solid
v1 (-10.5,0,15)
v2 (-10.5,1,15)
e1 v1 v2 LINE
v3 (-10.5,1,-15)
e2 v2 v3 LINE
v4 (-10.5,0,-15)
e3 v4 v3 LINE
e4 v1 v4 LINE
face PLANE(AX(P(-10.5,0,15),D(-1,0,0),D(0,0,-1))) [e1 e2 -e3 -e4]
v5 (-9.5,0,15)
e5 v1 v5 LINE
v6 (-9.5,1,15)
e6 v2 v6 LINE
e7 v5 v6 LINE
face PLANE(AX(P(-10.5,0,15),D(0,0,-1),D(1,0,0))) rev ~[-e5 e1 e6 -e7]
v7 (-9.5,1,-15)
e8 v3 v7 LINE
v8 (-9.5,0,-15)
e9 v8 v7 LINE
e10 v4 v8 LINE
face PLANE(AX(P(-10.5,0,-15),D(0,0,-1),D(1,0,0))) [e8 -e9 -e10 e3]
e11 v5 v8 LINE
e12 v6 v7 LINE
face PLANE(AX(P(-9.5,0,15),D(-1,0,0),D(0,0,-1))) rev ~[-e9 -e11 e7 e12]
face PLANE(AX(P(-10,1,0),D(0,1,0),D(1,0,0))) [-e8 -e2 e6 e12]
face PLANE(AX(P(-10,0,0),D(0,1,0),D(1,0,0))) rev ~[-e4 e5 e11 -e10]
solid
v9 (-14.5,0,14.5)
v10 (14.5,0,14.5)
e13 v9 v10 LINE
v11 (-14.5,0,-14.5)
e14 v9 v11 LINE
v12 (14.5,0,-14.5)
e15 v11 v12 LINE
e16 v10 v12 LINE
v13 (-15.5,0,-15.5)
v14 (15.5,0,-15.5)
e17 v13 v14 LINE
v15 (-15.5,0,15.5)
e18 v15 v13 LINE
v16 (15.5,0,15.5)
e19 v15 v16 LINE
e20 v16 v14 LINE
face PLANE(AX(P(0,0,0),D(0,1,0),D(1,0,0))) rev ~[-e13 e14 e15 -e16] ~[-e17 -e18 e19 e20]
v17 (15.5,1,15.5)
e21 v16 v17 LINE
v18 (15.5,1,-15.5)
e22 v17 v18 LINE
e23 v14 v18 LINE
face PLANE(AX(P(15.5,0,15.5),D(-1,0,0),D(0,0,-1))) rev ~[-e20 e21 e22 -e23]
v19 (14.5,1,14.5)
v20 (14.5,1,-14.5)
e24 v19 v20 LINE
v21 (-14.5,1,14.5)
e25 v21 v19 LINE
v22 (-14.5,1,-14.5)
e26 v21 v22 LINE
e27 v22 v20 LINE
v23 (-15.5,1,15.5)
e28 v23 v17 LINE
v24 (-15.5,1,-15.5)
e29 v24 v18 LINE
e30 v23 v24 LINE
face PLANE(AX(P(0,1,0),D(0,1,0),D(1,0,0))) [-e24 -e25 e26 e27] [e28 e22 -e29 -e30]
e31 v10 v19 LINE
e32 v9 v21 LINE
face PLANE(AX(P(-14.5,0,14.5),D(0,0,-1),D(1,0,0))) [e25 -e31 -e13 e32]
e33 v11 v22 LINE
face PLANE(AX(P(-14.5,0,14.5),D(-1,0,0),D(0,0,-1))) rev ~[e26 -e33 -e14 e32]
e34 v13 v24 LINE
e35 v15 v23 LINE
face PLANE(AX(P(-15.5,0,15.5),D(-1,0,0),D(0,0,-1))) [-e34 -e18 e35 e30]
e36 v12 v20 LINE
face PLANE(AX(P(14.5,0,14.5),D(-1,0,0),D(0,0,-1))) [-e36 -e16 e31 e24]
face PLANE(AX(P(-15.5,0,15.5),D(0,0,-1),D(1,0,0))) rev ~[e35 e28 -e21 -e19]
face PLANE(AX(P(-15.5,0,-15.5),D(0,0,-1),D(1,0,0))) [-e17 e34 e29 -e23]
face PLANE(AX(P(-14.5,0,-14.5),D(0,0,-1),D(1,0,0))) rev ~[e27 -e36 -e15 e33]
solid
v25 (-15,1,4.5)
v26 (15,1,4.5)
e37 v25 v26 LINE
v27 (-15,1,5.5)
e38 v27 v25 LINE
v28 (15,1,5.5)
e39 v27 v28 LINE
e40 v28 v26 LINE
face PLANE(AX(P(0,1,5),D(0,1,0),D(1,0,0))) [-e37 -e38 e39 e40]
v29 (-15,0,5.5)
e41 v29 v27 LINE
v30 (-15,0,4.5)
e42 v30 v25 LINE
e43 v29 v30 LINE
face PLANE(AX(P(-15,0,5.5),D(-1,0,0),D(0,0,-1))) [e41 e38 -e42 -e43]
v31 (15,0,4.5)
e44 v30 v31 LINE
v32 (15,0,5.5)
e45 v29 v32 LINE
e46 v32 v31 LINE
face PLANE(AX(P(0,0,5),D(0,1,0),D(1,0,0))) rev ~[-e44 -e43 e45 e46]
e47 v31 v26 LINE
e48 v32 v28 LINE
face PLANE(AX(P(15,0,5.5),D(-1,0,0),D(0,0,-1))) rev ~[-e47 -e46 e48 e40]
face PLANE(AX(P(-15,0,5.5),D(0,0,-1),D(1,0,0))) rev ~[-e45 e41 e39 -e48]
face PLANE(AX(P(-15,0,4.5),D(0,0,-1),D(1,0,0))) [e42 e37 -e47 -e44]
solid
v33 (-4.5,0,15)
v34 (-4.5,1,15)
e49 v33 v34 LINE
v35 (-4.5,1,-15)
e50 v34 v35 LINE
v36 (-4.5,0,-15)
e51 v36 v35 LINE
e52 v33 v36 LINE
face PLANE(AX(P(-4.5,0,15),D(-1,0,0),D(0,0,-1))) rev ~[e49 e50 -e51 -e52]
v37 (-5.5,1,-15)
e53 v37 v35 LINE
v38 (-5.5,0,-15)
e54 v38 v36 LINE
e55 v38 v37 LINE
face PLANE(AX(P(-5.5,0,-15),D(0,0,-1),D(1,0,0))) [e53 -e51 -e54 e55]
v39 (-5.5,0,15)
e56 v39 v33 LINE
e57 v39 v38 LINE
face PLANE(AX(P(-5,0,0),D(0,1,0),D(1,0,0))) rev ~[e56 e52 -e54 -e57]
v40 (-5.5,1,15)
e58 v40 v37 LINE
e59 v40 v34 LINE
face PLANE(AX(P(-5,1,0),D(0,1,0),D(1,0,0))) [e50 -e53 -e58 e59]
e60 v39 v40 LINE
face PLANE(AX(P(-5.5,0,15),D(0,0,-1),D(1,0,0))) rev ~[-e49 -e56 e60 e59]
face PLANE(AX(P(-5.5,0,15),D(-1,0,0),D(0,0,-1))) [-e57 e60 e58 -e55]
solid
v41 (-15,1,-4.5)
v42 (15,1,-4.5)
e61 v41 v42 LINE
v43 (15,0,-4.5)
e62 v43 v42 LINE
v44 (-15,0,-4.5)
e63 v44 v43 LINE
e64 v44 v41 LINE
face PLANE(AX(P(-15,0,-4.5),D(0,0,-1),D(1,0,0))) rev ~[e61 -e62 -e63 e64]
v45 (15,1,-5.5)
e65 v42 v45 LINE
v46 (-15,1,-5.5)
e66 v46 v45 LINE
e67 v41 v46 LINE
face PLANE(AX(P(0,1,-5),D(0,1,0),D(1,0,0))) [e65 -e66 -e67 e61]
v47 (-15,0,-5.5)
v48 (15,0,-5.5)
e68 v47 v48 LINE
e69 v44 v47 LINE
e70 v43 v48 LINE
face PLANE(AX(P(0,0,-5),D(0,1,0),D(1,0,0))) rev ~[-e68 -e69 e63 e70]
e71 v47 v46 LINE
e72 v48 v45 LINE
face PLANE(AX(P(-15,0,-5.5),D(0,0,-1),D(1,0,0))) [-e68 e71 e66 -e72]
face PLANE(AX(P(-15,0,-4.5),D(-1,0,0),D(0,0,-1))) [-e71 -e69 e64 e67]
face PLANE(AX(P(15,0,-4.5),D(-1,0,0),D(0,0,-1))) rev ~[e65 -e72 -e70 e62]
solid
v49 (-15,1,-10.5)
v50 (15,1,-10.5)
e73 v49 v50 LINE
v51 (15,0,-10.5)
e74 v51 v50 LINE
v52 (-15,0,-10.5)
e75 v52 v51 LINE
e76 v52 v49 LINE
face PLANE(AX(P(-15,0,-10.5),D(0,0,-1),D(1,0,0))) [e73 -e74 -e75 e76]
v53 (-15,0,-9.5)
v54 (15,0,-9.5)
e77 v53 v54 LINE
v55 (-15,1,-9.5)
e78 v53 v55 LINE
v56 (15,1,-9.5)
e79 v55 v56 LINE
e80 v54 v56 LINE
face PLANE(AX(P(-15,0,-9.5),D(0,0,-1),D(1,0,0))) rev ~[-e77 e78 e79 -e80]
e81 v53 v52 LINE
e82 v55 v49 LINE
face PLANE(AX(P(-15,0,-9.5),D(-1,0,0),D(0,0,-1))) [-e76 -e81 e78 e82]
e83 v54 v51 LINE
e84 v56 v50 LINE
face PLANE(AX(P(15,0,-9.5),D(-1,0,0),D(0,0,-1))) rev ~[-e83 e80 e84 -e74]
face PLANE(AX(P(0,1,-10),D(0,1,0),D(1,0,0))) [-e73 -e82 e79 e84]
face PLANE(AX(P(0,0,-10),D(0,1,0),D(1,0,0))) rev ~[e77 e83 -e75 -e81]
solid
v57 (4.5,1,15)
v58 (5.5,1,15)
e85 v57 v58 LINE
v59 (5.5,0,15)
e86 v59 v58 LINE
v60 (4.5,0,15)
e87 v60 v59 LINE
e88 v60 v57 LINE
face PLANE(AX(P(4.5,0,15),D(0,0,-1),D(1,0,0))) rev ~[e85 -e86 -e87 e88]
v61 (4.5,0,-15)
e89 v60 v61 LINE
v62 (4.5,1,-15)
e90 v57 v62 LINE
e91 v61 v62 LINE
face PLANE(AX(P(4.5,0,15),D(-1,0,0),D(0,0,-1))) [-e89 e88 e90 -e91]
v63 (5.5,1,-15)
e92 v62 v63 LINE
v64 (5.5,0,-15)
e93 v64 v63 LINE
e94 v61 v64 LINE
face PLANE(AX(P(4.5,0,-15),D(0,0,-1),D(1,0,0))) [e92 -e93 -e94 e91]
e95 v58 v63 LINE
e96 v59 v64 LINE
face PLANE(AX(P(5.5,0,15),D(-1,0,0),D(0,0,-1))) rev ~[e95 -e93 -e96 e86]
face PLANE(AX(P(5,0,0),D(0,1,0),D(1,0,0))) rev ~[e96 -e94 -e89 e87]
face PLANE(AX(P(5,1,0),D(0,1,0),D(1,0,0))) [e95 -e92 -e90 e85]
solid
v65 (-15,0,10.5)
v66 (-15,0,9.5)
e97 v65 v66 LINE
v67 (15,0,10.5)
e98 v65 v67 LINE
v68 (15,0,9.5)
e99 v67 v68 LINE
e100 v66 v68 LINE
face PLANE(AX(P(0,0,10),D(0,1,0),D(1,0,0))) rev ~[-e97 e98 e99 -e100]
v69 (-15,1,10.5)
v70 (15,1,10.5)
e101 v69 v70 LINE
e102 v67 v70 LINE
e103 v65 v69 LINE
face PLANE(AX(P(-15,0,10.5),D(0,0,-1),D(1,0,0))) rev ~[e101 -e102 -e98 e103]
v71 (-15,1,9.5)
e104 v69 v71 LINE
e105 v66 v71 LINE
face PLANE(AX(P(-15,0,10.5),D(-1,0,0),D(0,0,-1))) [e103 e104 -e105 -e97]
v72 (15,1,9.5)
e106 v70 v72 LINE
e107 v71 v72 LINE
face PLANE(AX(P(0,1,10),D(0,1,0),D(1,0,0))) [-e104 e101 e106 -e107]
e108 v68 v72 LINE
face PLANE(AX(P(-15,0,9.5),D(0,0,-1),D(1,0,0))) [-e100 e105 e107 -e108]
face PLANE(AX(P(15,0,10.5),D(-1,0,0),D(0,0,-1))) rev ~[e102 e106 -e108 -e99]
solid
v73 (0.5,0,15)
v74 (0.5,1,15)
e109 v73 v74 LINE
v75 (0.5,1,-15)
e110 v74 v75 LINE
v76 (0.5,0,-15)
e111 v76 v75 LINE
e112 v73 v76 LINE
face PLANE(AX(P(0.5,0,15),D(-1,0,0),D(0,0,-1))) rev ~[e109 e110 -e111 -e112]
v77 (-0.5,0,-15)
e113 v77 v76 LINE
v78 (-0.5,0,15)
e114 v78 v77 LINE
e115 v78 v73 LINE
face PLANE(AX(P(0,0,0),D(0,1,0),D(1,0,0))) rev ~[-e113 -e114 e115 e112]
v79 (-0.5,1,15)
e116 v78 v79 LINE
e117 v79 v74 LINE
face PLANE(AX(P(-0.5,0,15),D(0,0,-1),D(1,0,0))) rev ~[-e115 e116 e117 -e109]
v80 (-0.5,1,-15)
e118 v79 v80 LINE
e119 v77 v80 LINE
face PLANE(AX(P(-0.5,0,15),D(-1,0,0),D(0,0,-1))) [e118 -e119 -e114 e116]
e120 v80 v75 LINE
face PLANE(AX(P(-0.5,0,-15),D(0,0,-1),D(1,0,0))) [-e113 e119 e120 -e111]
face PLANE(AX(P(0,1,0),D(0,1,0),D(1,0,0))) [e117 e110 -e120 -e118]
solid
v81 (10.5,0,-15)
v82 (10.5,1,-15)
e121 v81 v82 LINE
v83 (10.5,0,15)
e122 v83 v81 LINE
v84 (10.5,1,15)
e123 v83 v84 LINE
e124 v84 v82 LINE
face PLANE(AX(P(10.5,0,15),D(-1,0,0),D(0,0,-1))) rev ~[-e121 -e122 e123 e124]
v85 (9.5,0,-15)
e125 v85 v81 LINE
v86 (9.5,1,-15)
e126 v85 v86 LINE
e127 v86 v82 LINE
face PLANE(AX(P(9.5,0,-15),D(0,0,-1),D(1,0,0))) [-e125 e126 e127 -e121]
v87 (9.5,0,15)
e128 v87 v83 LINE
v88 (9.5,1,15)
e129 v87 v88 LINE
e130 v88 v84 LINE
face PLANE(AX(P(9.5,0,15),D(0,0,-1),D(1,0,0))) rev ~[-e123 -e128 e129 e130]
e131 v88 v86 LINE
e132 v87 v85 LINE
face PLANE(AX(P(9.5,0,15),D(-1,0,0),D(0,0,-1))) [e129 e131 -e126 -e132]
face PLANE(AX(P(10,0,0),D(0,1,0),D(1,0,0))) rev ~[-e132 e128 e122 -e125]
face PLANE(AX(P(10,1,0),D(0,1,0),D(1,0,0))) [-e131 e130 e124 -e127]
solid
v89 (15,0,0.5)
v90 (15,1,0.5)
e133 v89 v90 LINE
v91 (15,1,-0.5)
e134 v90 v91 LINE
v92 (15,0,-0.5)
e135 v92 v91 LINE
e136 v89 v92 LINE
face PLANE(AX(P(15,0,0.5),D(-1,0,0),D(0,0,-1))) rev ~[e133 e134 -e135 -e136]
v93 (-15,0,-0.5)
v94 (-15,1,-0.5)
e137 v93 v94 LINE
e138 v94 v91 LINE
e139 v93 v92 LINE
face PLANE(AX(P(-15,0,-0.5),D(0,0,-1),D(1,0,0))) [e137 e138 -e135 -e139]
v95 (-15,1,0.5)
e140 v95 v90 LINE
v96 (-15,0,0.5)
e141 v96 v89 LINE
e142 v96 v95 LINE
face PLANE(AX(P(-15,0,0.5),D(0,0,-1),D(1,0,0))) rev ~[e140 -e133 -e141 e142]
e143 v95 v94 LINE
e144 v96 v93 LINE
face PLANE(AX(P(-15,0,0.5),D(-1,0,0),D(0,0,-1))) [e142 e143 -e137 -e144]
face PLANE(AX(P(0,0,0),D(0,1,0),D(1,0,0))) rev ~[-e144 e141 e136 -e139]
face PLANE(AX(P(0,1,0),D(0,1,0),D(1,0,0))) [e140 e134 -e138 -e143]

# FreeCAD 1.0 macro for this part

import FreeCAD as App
import Part
import Sketcher
from FreeCAD import Vector


def add_polygon(sketch, points):
    """Adds a closed chain of lines whose ends are joined by coincident constraints."""
    first, n = sketch.GeometryCount, len(points)
    for a, b in zip(points, points[1:] + points[:1]):
        sketch.addGeometry(Part.LineSegment(App.Vector(*a, 0), App.Vector(*b, 0)), False)
    for i in range(n):
        sketch.addConstraint(Sketcher.Constraint("Coincident", first + i, 2, first + (i + 1) % n, 1))

doc = App.newDocument("Part")
body = doc.addObject("PartDesign::Body", "Body")

# Sketch on XZ plane
sketch1 = body.newObject("Sketcher::SketchObject", "Sketch")
sketch1.AttachmentSupport = (doc.getObject("XZ_Plane"), [""])
sketch1.MapMode = "FlatFace"
add_polygon(sketch1, [(-10.5, -15), (-10.5, 15), (-9.5, 15), (-9.5, -15)])  # lines 0-3
sketch1.addConstraint(Sketcher.Constraint("Vertical", 0))
sketch1.addConstraint(Sketcher.Constraint("Horizontal", 1))
sketch1.addConstraint(Sketcher.Constraint("Vertical", 2))
sketch1.addConstraint(Sketcher.Constraint("Horizontal", 3))
sketch1.addConstraint(Sketcher.Constraint("DistanceX", 1, 1, 1, 2, 1.0))
sketch1.addConstraint(Sketcher.Constraint("DistanceY", 0, 1, 0, 2, 30.0))
sketch1.addConstraint(Sketcher.Constraint("DistanceY", -1, 1, 0, 2, 15.0))
sketch1.addConstraint(Sketcher.Constraint("DistanceX", 0, 2, -1, 1, 10.5))
pad1 = body.newObject("PartDesign::Pad", "Pad")
pad1.Profile = sketch1
pad1.Length = 1
pad1.Reversed = True
body2 = doc.addObject("PartDesign::Body", "Body001")

# Sketch on XZ plane
sketch2 = body2.newObject("Sketcher::SketchObject", "Sketch001")
sketch2.AttachmentSupport = (doc.getObject("XZ_Plane001"), [""])
sketch2.MapMode = "FlatFace"
add_polygon(sketch2, [(-16, -16), (-16, 16), (16, 16), (16, -16)])  # lines 0-3
add_polygon(sketch2, [(14, 14), (-14, 14), (-14, -14), (14, -14)])  # lines 4-7
sketch2.addConstraint(Sketcher.Constraint("Vertical", 0))
sketch2.addConstraint(Sketcher.Constraint("Horizontal", 1))
sketch2.addConstraint(Sketcher.Constraint("Vertical", 2))
sketch2.addConstraint(Sketcher.Constraint("Horizontal", 3))
sketch2.addConstraint(Sketcher.Constraint("Horizontal", 4))
sketch2.addConstraint(Sketcher.Constraint("Vertical", 5))
sketch2.addConstraint(Sketcher.Constraint("Horizontal", 6))
sketch2.addConstraint(Sketcher.Constraint("Vertical", 7))
sketch2.addConstraint(Sketcher.Constraint("Symmetric", 0, 2, 2, 2, -1, 1))
sketch2.addConstraint(Sketcher.Constraint("Symmetric", 4, 2, 6, 2, -1, 1))
sketch2.addConstraint(Sketcher.Constraint("Equal", 3, 0))
sketch2.addConstraint(Sketcher.Constraint("Equal", 6, 5))
sketch2.addConstraint(Sketcher.Constraint("DistanceX", 1, 1, 1, 2, 31.0))
sketch2.addConstraint(Sketcher.Constraint("DistanceX", 4, 2, 4, 1, 29.0))
pad2 = body2.newObject("PartDesign::Pad", "Pad001")
pad2.Profile = sketch2
pad2.Length = 1
pad2.Reversed = True
body3 = doc.addObject("PartDesign::Body", "Body002")

# Sketch on XZ plane
sketch3 = body3.newObject("Sketcher::SketchObject", "Sketch002")
sketch3.AttachmentSupport = (doc.getObject("XZ_Plane002"), [""])
sketch3.MapMode = "FlatFace"
add_polygon(sketch3, [(-5.5, -15), (-5.5, 15), (-4.5, 15), (-4.5, -15)])  # lines 0-3
sketch3.addConstraint(Sketcher.Constraint("Vertical", 0))
sketch3.addConstraint(Sketcher.Constraint("Horizontal", 1))
sketch3.addConstraint(Sketcher.Constraint("Vertical", 2))
sketch3.addConstraint(Sketcher.Constraint("Horizontal", 3))
sketch3.addConstraint(Sketcher.Constraint("DistanceX", 1, 1, 1, 2, 1.0))
sketch3.addConstraint(Sketcher.Constraint("DistanceY", 0, 1, 0, 2, 30.0))
sketch3.addConstraint(Sketcher.Constraint("DistanceY", -1, 1, 0, 2, 15.0))
sketch3.addConstraint(Sketcher.Constraint("DistanceX", 0, 2, -1, 1, 5.5))
pad3 = body3.newObject("PartDesign::Pad", "Pad002")
pad3.Profile = sketch3
pad3.Length = 1
pad3.Reversed = True
body4 = doc.addObject("PartDesign::Body", "Body003")

# Sketch on XZ plane
sketch4 = body4.newObject("Sketcher::SketchObject", "Sketch003")
sketch4.AttachmentSupport = (doc.getObject("XZ_Plane003"), [""])
sketch4.MapMode = "FlatFace"
add_polygon(sketch4, [(-0.5, -15), (-0.5, 15), (0.5, 15), (0.5, -15)])  # lines 0-3
sketch4.addConstraint(Sketcher.Constraint("Vertical", 0))
sketch4.addConstraint(Sketcher.Constraint("Horizontal", 1))
sketch4.addConstraint(Sketcher.Constraint("Vertical", 2))
sketch4.addConstraint(Sketcher.Constraint("Horizontal", 3))
sketch4.addConstraint(Sketcher.Constraint("Symmetric", 0, 2, 2, 2, -1, 1))
sketch4.addConstraint(Sketcher.Constraint("DistanceX", 1, 1, 1, 2, 1.0))
sketch4.addConstraint(Sketcher.Constraint("DistanceY", 0, 1, 0, 2, 30.0))
pad4 = body4.newObject("PartDesign::Pad", "Pad003")
pad4.Profile = sketch4
pad4.Length = 1
pad4.Reversed = True
body5 = doc.addObject("PartDesign::Body", "Body004")

# Sketch on XZ plane
sketch5 = body5.newObject("Sketcher::SketchObject", "Sketch004")
sketch5.AttachmentSupport = (doc.getObject("XZ_Plane004"), [""])
sketch5.MapMode = "FlatFace"
add_polygon(sketch5, [(4.5, -15), (4.5, 15), (5.5, 15), (5.5, -15)])  # lines 0-3
sketch5.addConstraint(Sketcher.Constraint("Vertical", 0))
sketch5.addConstraint(Sketcher.Constraint("Horizontal", 1))
sketch5.addConstraint(Sketcher.Constraint("Vertical", 2))
sketch5.addConstraint(Sketcher.Constraint("Horizontal", 3))
sketch5.addConstraint(Sketcher.Constraint("DistanceX", 1, 1, 1, 2, 1.0))
sketch5.addConstraint(Sketcher.Constraint("DistanceY", 0, 1, 0, 2, 30.0))
sketch5.addConstraint(Sketcher.Constraint("DistanceY", -1, 1, 0, 2, 15.0))
sketch5.addConstraint(Sketcher.Constraint("DistanceX", -1, 1, 0, 2, 4.5))
pad5 = body5.newObject("PartDesign::Pad", "Pad004")
pad5.Profile = sketch5
pad5.Length = 1
pad5.Reversed = True
body6 = doc.addObject("PartDesign::Body", "Body005")

# Sketch on XZ plane
sketch6 = body6.newObject("Sketcher::SketchObject", "Sketch005")
sketch6.AttachmentSupport = (doc.getObject("XZ_Plane005"), [""])
sketch6.MapMode = "FlatFace"
add_polygon(sketch6, [(9.5, -15), (9.5, 15), (10.5, 15), (10.5, -15)])  # lines 0-3
sketch6.addConstraint(Sketcher.Constraint("Vertical", 0))
sketch6.addConstraint(Sketcher.Constraint("Horizontal", 1))
sketch6.addConstraint(Sketcher.Constraint("Vertical", 2))
sketch6.addConstraint(Sketcher.Constraint("Horizontal", 3))
sketch6.addConstraint(Sketcher.Constraint("DistanceX", 1, 1, 1, 2, 1.0))
sketch6.addConstraint(Sketcher.Constraint("DistanceY", 0, 1, 0, 2, 30.0))
sketch6.addConstraint(Sketcher.Constraint("DistanceY", -1, 1, 0, 2, 15.0))
sketch6.addConstraint(Sketcher.Constraint("DistanceX", -1, 1, 0, 2, 9.5))
pad6 = body6.newObject("PartDesign::Pad", "Pad005")
pad6.Profile = sketch6
pad6.Length = 1
pad6.Reversed = True
body7 = doc.addObject("PartDesign::Body", "Body006")

# Sketch on XZ plane
sketch7 = body7.newObject("Sketcher::SketchObject", "Sketch006")
sketch7.AttachmentSupport = (doc.getObject("XZ_Plane006"), [""])
sketch7.MapMode = "FlatFace"
add_polygon(sketch7, [(-15, 9.5), (-15, 10.5), (15, 10.5), (15, 9.5)])  # lines 0-3
sketch7.addConstraint(Sketcher.Constraint("Vertical", 0))
sketch7.addConstraint(Sketcher.Constraint("Horizontal", 1))
sketch7.addConstraint(Sketcher.Constraint("Vertical", 2))
sketch7.addConstraint(Sketcher.Constraint("Horizontal", 3))
sketch7.addConstraint(Sketcher.Constraint("DistanceX", 1, 1, 1, 2, 30.0))
sketch7.addConstraint(Sketcher.Constraint("DistanceY", 0, 1, 0, 2, 1.0))
sketch7.addConstraint(Sketcher.Constraint("DistanceX", 0, 2, -1, 1, 15.0))
sketch7.addConstraint(Sketcher.Constraint("DistanceY", -1, 1, 0, 2, 10.5))
pad7 = body7.newObject("PartDesign::Pad", "Pad006")
pad7.Profile = sketch7
pad7.Length = 1
pad7.Reversed = True
body8 = doc.addObject("PartDesign::Body", "Body007")

# Sketch on XZ plane
sketch8 = body8.newObject("Sketcher::SketchObject", "Sketch007")
sketch8.AttachmentSupport = (doc.getObject("XZ_Plane007"), [""])
sketch8.MapMode = "FlatFace"
add_polygon(sketch8, [(-15, 4.5), (-15, 5.5), (15, 5.5), (15, 4.5)])  # lines 0-3
sketch8.addConstraint(Sketcher.Constraint("Vertical", 0))
sketch8.addConstraint(Sketcher.Constraint("Horizontal", 1))
sketch8.addConstraint(Sketcher.Constraint("Vertical", 2))
sketch8.addConstraint(Sketcher.Constraint("Horizontal", 3))
sketch8.addConstraint(Sketcher.Constraint("DistanceX", 1, 1, 1, 2, 30.0))
sketch8.addConstraint(Sketcher.Constraint("DistanceY", 0, 1, 0, 2, 1.0))
sketch8.addConstraint(Sketcher.Constraint("DistanceX", 0, 2, -1, 1, 15.0))
sketch8.addConstraint(Sketcher.Constraint("DistanceY", -1, 1, 0, 2, 5.5))
pad8 = body8.newObject("PartDesign::Pad", "Pad007")
pad8.Profile = sketch8
pad8.Length = 1
pad8.Reversed = True
body9 = doc.addObject("PartDesign::Body", "Body008")

# Sketch on XZ plane
sketch9 = body9.newObject("Sketcher::SketchObject", "Sketch008")
sketch9.AttachmentSupport = (doc.getObject("XZ_Plane008"), [""])
sketch9.MapMode = "FlatFace"
add_polygon(sketch9, [(-15, -0.5), (-15, 0.5), (15, 0.5), (15, -0.5)])  # lines 0-3
sketch9.addConstraint(Sketcher.Constraint("Vertical", 0))
sketch9.addConstraint(Sketcher.Constraint("Horizontal", 1))
sketch9.addConstraint(Sketcher.Constraint("Vertical", 2))
sketch9.addConstraint(Sketcher.Constraint("Horizontal", 3))
sketch9.addConstraint(Sketcher.Constraint("Symmetric", 0, 2, 2, 2, -1, 1))
sketch9.addConstraint(Sketcher.Constraint("DistanceX", 1, 1, 1, 2, 30.0))
sketch9.addConstraint(Sketcher.Constraint("DistanceY", 0, 1, 0, 2, 1.0))
pad9 = body9.newObject("PartDesign::Pad", "Pad008")
pad9.Profile = sketch9
pad9.Length = 1
pad9.Reversed = True
body10 = doc.addObject("PartDesign::Body", "Body009")

# Sketch on XZ plane
sketch10 = body10.newObject("Sketcher::SketchObject", "Sketch009")
sketch10.AttachmentSupport = (doc.getObject("XZ_Plane009"), [""])
sketch10.MapMode = "FlatFace"
add_polygon(sketch10, [(-15, -5.5), (-15, -4.5), (15, -4.5), (15, -5.5)])  # lines 0-3
sketch10.addConstraint(Sketcher.Constraint("Vertical", 0))
sketch10.addConstraint(Sketcher.Constraint("Horizontal", 1))
sketch10.addConstraint(Sketcher.Constraint("Vertical", 2))
sketch10.addConstraint(Sketcher.Constraint("Horizontal", 3))
sketch10.addConstraint(Sketcher.Constraint("DistanceX", 1, 1, 1, 2, 30.0))
sketch10.addConstraint(Sketcher.Constraint("DistanceY", 0, 1, 0, 2, 1.0))
sketch10.addConstraint(Sketcher.Constraint("DistanceX", 0, 2, -1, 1, 15.0))
sketch10.addConstraint(Sketcher.Constraint("DistanceY", 0, 2, -1, 1, 4.5))
pad10 = body10.newObject("PartDesign::Pad", "Pad009")
pad10.Profile = sketch10
pad10.Length = 1
pad10.Reversed = True
body11 = doc.addObject("PartDesign::Body", "Body010")

# Sketch on XZ plane
sketch11 = body11.newObject("Sketcher::SketchObject", "Sketch010")
sketch11.AttachmentSupport = (doc.getObject("XZ_Plane010"), [""])
sketch11.MapMode = "FlatFace"
add_polygon(sketch11, [(-15, -10.5), (-15, -9.5), (15, -9.5), (15, -10.5)])  # lines 0-3
sketch11.addConstraint(Sketcher.Constraint("Vertical", 0))
sketch11.addConstraint(Sketcher.Constraint("Horizontal", 1))
sketch11.addConstraint(Sketcher.Constraint("Vertical", 2))
sketch11.addConstraint(Sketcher.Constraint("Horizontal", 3))
sketch11.addConstraint(Sketcher.Constraint("DistanceX", 1, 1, 1, 2, 30.0))
sketch11.addConstraint(Sketcher.Constraint("DistanceY", 0, 1, 0, 2, 1.0))
sketch11.addConstraint(Sketcher.Constraint("DistanceX", 0, 2, -1, 1, 15.0))
sketch11.addConstraint(Sketcher.Constraint("DistanceY", 0, 2, -1, 1, 9.5))
pad11 = body11.newObject("PartDesign::Pad", "Pad010")
pad11.Profile = sketch11
pad11.Length = 1
pad11.Reversed = True

doc.recompute()
